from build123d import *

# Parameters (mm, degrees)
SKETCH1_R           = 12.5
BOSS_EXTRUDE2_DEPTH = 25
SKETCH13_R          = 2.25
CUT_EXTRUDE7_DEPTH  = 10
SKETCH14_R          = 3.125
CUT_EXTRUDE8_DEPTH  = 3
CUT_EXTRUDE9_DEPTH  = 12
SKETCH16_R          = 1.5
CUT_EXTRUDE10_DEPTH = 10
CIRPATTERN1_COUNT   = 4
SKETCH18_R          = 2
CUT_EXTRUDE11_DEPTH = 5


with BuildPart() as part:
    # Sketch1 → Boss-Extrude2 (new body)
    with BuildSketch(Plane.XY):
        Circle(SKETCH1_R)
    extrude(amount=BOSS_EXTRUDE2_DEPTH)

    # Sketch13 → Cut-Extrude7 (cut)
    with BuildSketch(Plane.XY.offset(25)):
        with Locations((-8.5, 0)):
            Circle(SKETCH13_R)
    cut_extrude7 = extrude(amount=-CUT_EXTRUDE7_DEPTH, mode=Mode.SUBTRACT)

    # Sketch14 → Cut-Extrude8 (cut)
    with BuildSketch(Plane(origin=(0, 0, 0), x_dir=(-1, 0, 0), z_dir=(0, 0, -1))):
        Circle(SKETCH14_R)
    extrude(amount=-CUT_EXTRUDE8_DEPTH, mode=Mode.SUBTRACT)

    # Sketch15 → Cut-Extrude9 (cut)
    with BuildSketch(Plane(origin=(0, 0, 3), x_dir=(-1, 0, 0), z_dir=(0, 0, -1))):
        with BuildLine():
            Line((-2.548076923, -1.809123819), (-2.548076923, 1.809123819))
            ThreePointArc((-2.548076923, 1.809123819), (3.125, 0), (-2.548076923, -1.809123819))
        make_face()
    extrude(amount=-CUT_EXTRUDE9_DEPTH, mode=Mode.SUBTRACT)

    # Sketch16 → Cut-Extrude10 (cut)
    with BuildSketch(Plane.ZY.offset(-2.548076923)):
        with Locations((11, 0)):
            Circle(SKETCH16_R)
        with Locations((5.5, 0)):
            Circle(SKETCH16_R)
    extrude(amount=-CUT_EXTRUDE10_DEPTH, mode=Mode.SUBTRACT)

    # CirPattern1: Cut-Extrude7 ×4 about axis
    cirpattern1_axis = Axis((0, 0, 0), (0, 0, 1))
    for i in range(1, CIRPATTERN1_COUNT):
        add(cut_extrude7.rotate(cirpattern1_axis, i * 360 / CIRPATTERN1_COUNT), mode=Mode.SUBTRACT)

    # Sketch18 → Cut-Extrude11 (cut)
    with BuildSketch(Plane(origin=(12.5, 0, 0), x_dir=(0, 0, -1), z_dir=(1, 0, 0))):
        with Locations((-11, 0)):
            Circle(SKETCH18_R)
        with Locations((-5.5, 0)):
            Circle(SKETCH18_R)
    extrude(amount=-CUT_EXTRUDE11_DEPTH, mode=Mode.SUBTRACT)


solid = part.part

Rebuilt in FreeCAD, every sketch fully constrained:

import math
import FreeCAD as App
import Part
import Sketcher
Q = App.Units.Quantity

doc = App.newDocument("Part")
params = doc.addObject("Spreadsheet::Sheet", "Params")
for row, (alias, value) in enumerate([
    ("sketch1_diameter", "25 mm"),
    ("pad1_length", "25 mm"),
    ("sketch2_diameter", "4.5 mm"),
    ("pocket1_length", "10 mm"),
    ("sketch3_diameter", "6.25 mm"),
    ("pocket2_length", "3 mm"),
    ("pocket3_length", "12 mm"),
    ("sketch5_diameter", "3 mm"),
    ("pocket4_length", "10 mm"),
    ("sketch6_diameter", "4 mm"),
    ("pocket5_length", "5 mm"),
], start=1):
    params.set(f"A{row}", alias)
    params.set(f"B{row}", "=" + value)
    params.setAlias(f"B{row}", alias)

body = doc.addObject("PartDesign::Body", "Body")

# Sketch on XY plane
sketch1 = body.newObject("Sketcher::SketchObject", "Sketch")
sketch1.AttachmentSupport = (doc.getObject("XY_Plane"), [""])
sketch1.MapMode = "FlatFace"
sketch1.addGeometry(Part.Circle(App.Vector(0, 0, 0), App.Vector(0, 0, 1), 12), False)
sketch1.addConstraint([
    Sketcher.Constraint("Coincident", 0, 3, -1, 1),
    Sketcher.Constraint("Diameter", 0, Q("25 mm")),
])
sketch1.setExpression("Constraints[1]", "Params.sketch1_diameter")
pad1 = body.newObject("PartDesign::Pad", "Pad")
pad1.Profile = sketch1
pad1.setExpression("Length", "Params.pad1_length")

# Sketch on XY plane
sketch2 = body.newObject("Sketcher::SketchObject", "Sketch001")
sketch2.AttachmentSupport = (doc.getObject("XY_Plane"), [""])
sketch2.MapMode = "FlatFace"
sketch2.AttachmentOffset = App.Placement(App.Vector(0, 0, 25), App.Rotation())
sketch2.addGeometry(Part.Circle(App.Vector(-8.5, 0, 0), App.Vector(0, 0, 1), 2.2), False)
sketch2.addConstraint([
    Sketcher.Constraint("PointOnObject", 0, 3, -1),
    Sketcher.Constraint("Diameter", 0, Q("4.5 mm")),
    Sketcher.Constraint("DistanceX", 0, 3, -1, 1, Q("8.5 mm")),
])
sketch2.setExpression("Constraints[1]", "Params.sketch2_diameter")
pocket1 = body.newObject("PartDesign::Pocket", "Pocket")
pocket1.Profile = sketch2
pocket1.setExpression("Length", "Params.pocket1_length")

# Sketch on XY plane
sketch3 = body.newObject("Sketcher::SketchObject", "Sketch002")
sketch3.AttachmentSupport = (doc.getObject("XY_Plane"), [""])
sketch3.MapMode = "FlatFace"
sketch3.addGeometry(Part.Circle(App.Vector(0, 0, 0), App.Vector(0, 0, 1), 3.1), False)
sketch3.addConstraint([
    Sketcher.Constraint("Coincident", 0, 3, -1, 1),
    Sketcher.Constraint("Diameter", 0, Q("6.25 mm")),
])
sketch3.setExpression("Constraints[1]", "Params.sketch3_diameter")
pocket2 = body.newObject("PartDesign::Pocket", "Pocket001")
pocket2.Profile = sketch3
pocket2.setExpression("Length", "Params.pocket2_length")
pocket2.Reversed = True

# Sketch on XY plane
sketch4 = body.newObject("Sketcher::SketchObject", "Sketch003")
sketch4.AttachmentSupport = (doc.getObject("XY_Plane"), [""])
sketch4.MapMode = "FlatFace"
sketch4.AttachmentOffset = App.Placement(App.Vector(0, 0, 3), App.Rotation())
sketch4.addGeometry([
    Part.LineSegment(App.Vector(2.5, 1.8, 0), App.Vector(2.5, -1.8, 0)),
    Part.ArcOfCircle(Part.Circle(App.Vector(0, 0, 0), App.Vector(0, 0, 1), 3.1), math.radians(35), math.radians(325)),
], False)
sketch4.addConstraint([
    Sketcher.Constraint("Coincident", 0, 1, 1, 1),
    Sketcher.Constraint("Coincident", 1, 2, 0, 2),
    Sketcher.Constraint("Vertical", 0),
    Sketcher.Constraint("Coincident", 1, 3, -1, 1),
    Sketcher.Constraint("Radius", 1, Q("3.125 mm")),
    Sketcher.Constraint("DistanceY", 0, 2, 0, 1, Q("3.618248 mm")),
])
pocket3 = body.newObject("PartDesign::Pocket", "Pocket002")
pocket3.Profile = sketch4
pocket3.setExpression("Length", "Params.pocket3_length")
pocket3.Reversed = True

# Sketch on YZ plane
sketch5 = body.newObject("Sketcher::SketchObject", "Sketch004")
sketch5.AttachmentSupport = (doc.getObject("YZ_Plane"), [""])
sketch5.MapMode = "FlatFace"
sketch5.AttachmentOffset = App.Placement(App.Vector(0, 0, 2.548077), App.Rotation())
sketch5.addGeometry([
    Part.Circle(App.Vector(0, 11, 0), App.Vector(0, 0, 1), 1.5),
    Part.Circle(App.Vector(0, 5.5, 0), App.Vector(0, 0, 1), 1.5),
], False)
sketch5.addConstraint([
    Sketcher.Constraint("Equal", 0, 1),
    Sketcher.Constraint("PointOnObject", 0, 3, -2),
    Sketcher.Constraint("PointOnObject", 1, 3, -2),
    Sketcher.Constraint("Diameter", 0, Q("3 mm")),
    Sketcher.Constraint("DistanceY", -1, 1, 0, 3, Q("11 mm")),
    Sketcher.Constraint("DistanceY", -1, 1, 1, 3, Q("5.5 mm")),
])
sketch5.setExpression("Constraints[3]", "Params.sketch5_diameter")
pocket4 = body.newObject("PartDesign::Pocket", "Pocket003")
pocket4.Profile = sketch5
pocket4.setExpression("Length", "Params.pocket4_length")
pocket4.Reversed = True
doc.recompute()

polarpattern = body.newObject("PartDesign::PolarPattern", "PolarPattern")
polarpattern.Originals = [pocket1]
polarpattern.Axis = (doc.getObject("Z_Axis"), [""])
polarpattern.Angle = 360
polarpattern.Occurrences = 4
body.Tip = polarpattern

# Sketch on YZ plane
sketch6 = body.newObject("Sketcher::SketchObject", "Sketch005")
sketch6.AttachmentSupport = (doc.getObject("YZ_Plane"), [""])
sketch6.MapMode = "FlatFace"
sketch6.AttachmentOffset = App.Placement(App.Vector(0, 0, 12.5), App.Rotation())
sketch6.addGeometry([
    Part.Circle(App.Vector(0, 11, 0), App.Vector(0, 0, 1), 2),
    Part.Circle(App.Vector(0, 5.5, 0), App.Vector(0, 0, 1), 2),
], False)
sketch6.addConstraint([
    Sketcher.Constraint("Equal", 0, 1),
    Sketcher.Constraint("PointOnObject", 0, 3, -2),
    Sketcher.Constraint("PointOnObject", 1, 3, -2),
    Sketcher.Constraint("Diameter", 0, Q("4 mm")),
    Sketcher.Constraint("DistanceY", -1, 1, 0, 3, Q("11 mm")),
    Sketcher.Constraint("DistanceY", -1, 1, 1, 3, Q("5.5 mm")),
])
sketch6.setExpression("Constraints[3]", "Params.sketch6_diameter")
pocket5 = body.newObject("PartDesign::Pocket", "Pocket004")
pocket5.Profile = sketch6
pocket5.setExpression("Length", "Params.pocket5_length")

doc.recompute()
